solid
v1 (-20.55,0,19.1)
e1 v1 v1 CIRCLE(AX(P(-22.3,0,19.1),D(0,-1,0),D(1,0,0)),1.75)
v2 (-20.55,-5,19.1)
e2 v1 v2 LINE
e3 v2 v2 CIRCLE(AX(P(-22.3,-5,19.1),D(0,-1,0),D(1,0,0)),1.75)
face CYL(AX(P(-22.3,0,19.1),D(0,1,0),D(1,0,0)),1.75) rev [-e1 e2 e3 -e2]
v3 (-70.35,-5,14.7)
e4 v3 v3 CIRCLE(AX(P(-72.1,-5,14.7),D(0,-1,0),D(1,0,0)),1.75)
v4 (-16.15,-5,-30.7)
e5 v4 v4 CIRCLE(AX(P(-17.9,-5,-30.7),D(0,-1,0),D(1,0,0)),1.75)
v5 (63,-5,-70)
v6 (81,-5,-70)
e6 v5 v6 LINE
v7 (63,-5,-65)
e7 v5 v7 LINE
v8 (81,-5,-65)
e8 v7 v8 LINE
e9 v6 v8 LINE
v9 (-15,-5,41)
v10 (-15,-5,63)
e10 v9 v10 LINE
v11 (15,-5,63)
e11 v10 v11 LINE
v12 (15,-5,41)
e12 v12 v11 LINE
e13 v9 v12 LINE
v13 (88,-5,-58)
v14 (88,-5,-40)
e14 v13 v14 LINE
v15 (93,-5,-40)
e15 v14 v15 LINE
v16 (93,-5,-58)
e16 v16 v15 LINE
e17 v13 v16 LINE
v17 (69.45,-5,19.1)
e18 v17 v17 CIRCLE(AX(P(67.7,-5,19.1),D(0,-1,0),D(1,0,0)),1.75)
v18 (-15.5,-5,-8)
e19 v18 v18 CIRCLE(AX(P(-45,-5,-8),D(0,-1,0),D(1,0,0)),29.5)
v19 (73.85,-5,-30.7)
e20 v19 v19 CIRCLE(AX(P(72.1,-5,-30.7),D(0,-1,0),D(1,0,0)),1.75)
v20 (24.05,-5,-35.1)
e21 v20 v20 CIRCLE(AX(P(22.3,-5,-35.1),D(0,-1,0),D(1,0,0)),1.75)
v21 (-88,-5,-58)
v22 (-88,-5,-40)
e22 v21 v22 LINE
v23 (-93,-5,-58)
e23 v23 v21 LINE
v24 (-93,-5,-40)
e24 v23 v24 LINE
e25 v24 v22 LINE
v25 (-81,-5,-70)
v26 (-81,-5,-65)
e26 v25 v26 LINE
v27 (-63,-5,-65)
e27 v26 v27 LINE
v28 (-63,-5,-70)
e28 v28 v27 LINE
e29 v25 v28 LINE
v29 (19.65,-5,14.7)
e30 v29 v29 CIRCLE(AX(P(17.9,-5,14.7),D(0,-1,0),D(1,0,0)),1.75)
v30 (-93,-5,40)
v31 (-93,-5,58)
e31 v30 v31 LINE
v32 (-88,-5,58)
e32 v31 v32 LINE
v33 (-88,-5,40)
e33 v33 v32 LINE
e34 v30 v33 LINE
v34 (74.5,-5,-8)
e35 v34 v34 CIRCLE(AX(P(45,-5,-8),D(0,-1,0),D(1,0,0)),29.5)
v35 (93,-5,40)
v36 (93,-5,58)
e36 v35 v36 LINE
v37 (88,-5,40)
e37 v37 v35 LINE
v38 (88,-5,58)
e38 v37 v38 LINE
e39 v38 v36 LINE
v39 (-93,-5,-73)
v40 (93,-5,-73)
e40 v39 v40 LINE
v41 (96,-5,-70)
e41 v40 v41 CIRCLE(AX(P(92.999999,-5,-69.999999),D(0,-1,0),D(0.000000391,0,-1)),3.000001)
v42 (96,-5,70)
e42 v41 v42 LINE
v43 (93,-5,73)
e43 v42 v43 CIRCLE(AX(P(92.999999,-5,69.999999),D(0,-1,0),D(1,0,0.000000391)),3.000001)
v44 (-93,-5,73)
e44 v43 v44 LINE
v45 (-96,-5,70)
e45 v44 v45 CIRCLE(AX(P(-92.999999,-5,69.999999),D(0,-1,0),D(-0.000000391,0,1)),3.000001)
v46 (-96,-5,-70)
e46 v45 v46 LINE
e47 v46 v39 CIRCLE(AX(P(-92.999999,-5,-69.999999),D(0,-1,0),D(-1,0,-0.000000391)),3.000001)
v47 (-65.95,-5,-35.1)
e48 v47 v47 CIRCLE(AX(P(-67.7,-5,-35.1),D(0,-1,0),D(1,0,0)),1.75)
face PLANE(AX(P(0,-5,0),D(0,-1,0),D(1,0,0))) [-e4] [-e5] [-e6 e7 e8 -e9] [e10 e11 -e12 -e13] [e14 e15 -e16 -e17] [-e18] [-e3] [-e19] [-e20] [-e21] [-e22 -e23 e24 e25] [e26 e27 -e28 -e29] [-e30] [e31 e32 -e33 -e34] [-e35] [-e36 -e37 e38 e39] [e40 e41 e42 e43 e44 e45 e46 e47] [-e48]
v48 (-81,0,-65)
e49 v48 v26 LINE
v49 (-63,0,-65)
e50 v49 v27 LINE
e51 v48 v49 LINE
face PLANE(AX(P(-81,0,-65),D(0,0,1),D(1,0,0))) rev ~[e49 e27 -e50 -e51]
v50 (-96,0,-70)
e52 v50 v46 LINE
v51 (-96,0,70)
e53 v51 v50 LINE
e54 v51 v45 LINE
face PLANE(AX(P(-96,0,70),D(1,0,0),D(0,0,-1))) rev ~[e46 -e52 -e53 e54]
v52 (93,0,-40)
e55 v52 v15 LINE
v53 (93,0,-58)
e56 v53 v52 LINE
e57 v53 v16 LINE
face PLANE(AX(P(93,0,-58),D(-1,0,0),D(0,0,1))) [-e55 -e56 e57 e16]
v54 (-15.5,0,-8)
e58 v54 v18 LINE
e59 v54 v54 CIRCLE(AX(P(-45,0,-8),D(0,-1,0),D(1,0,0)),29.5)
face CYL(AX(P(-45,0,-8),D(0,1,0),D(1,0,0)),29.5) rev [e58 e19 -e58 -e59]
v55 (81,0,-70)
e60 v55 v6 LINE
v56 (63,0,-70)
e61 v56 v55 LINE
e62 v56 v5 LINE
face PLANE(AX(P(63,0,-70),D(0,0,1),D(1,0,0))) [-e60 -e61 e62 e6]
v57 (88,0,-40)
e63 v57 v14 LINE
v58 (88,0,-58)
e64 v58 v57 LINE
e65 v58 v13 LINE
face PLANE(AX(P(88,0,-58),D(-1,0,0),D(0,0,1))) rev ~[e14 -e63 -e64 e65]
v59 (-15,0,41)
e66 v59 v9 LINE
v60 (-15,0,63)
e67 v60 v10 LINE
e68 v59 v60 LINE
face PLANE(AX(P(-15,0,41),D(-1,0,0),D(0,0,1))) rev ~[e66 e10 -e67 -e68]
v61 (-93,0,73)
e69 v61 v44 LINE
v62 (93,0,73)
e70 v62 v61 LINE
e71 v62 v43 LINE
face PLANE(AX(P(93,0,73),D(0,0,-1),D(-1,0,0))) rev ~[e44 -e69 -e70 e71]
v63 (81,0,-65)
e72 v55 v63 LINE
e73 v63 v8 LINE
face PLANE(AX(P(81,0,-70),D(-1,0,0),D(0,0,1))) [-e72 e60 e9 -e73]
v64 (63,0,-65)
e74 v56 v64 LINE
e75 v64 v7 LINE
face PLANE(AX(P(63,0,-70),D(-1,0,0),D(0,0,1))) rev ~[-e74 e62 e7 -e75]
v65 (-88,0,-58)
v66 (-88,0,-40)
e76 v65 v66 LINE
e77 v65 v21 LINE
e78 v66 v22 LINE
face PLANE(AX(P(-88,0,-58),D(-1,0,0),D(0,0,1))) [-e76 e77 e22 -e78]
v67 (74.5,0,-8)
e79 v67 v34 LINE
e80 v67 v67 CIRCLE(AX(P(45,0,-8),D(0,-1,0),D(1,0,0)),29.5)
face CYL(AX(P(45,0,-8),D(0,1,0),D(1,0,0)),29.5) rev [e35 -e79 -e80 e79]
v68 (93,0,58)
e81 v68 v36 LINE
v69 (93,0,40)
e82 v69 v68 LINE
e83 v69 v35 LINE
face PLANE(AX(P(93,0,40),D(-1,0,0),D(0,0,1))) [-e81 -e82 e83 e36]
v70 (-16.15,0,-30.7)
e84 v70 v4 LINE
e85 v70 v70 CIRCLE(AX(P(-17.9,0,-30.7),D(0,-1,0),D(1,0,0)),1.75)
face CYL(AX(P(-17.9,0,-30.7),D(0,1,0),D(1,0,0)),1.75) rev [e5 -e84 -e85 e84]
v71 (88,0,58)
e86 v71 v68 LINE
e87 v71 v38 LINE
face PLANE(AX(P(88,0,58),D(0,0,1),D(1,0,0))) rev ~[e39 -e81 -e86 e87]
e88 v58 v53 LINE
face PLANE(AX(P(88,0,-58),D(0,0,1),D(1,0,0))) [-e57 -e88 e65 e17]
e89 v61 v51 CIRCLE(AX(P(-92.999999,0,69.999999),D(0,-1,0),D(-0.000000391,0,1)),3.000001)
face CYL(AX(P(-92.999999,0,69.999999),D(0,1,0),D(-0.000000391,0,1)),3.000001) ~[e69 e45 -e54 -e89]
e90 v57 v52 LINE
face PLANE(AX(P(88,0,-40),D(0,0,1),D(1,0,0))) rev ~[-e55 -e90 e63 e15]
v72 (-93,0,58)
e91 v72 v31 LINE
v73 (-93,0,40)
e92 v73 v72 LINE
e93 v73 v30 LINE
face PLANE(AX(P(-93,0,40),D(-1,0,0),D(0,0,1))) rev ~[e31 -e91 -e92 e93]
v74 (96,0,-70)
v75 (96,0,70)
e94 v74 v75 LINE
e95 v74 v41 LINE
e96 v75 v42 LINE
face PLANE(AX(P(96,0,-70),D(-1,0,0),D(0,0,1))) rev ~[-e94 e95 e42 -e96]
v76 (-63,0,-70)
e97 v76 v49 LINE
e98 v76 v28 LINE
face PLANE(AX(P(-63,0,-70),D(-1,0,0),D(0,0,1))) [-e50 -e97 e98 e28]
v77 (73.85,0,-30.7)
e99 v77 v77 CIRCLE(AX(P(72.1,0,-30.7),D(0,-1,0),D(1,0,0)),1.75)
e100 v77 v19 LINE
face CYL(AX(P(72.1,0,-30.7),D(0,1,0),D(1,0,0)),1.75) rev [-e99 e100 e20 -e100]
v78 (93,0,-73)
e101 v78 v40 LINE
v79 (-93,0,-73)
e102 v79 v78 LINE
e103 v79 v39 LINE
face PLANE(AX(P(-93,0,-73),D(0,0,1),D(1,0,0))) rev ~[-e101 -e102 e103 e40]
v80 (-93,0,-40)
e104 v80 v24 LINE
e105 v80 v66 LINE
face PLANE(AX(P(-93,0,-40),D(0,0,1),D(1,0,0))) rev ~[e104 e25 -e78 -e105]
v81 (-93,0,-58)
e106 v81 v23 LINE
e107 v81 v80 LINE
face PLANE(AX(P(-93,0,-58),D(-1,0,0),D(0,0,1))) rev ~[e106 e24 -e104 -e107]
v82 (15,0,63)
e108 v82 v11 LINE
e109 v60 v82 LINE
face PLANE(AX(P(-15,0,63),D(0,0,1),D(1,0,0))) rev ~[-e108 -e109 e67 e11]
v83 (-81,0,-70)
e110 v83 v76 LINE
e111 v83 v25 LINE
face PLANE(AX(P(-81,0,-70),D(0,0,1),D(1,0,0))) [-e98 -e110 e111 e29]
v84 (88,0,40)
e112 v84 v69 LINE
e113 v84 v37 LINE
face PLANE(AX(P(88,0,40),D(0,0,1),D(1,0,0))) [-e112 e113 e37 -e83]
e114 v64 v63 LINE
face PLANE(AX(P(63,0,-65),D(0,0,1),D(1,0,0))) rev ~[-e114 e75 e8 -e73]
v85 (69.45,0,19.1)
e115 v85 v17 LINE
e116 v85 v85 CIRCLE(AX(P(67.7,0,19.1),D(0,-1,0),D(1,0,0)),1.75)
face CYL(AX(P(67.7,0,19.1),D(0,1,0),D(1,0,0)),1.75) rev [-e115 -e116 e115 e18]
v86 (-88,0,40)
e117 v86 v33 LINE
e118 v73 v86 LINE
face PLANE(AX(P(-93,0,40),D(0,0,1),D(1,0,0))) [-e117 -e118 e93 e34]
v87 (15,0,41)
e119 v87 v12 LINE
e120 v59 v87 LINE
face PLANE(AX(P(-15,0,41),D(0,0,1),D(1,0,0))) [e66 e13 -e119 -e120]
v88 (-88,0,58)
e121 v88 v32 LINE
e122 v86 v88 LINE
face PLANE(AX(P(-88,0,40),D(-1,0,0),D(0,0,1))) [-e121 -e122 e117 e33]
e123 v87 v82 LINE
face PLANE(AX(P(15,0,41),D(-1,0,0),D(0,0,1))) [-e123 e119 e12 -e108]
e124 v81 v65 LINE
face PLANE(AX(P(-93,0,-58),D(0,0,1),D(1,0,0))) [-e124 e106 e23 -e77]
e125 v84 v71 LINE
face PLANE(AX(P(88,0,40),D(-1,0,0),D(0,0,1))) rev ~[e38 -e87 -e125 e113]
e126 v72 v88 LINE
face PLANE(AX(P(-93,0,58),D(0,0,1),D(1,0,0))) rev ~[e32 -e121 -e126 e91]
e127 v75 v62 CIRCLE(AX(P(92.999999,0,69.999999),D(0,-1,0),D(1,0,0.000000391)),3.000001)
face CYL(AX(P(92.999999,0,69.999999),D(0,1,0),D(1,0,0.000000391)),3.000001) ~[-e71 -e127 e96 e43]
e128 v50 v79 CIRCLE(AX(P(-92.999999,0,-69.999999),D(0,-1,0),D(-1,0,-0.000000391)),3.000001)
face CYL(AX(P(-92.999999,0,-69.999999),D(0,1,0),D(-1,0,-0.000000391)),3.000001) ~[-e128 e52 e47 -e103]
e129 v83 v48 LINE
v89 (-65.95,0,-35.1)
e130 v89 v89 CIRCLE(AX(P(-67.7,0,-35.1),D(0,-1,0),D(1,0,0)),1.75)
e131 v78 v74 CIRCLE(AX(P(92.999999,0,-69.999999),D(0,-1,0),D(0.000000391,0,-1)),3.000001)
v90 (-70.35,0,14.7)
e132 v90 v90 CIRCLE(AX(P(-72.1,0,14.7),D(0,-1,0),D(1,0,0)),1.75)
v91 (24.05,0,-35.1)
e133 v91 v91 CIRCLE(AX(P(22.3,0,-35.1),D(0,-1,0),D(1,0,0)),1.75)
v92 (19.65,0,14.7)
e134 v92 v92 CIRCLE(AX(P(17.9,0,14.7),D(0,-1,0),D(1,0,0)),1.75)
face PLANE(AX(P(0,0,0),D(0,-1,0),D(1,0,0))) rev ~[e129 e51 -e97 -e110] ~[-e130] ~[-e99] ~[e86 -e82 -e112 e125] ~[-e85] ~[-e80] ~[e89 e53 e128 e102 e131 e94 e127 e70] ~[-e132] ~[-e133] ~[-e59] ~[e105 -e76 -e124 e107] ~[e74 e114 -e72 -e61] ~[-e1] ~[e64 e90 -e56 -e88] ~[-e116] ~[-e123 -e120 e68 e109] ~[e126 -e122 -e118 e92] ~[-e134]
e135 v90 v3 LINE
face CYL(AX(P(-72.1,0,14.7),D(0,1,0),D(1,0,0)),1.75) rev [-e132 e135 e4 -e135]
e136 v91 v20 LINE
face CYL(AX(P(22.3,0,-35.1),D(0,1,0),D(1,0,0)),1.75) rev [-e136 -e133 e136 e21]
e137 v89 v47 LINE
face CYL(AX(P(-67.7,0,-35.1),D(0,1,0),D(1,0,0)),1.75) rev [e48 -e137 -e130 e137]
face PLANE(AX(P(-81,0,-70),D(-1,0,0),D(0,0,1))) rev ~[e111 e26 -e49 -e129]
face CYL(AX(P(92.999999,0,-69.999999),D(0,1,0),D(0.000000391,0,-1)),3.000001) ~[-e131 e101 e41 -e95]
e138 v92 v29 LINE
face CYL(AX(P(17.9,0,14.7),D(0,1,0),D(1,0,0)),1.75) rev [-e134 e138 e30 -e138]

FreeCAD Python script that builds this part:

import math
import FreeCAD as App
import Part
import Sketcher
from FreeCAD import Vector


def add_polygon(sketch, points):
    """Adds a closed chain of lines whose ends are joined by coincident constraints."""
    first, n = sketch.GeometryCount, len(points)
    for a, b in zip(points, points[1:] + points[:1]):
        sketch.addGeometry(Part.LineSegment(App.Vector(*a, 0), App.Vector(*b, 0)), False)
    for i in range(n):
        sketch.addConstraint(Sketcher.Constraint("Coincident", first + i, 2, first + (i + 1) % n, 1))

doc = App.newDocument("Part")
body = doc.addObject("PartDesign::Body", "Body")

# Sketch on XZ plane
sketch1 = body.newObject("Sketcher::SketchObject", "Sketch")
sketch1.AttachmentSupport = (doc.getObject("XZ_Plane"), [""])
sketch1.MapMode = "FlatFace"
sketch1.addGeometry(Part.LineSegment(Vector(93, 73, 0), Vector(-93, 73, 0)), False)  # 0
sketch1.addGeometry(Part.ArcOfCircle(Part.Circle(Vector(-93, 70, 0), Vector(0, 0, 1), 3), math.radians(90), math.radians(180)), False)  # 1
sketch1.addGeometry(Part.LineSegment(Vector(-96, 70, 0), Vector(-96, -70, 0)), False)  # 2
sketch1.addGeometry(Part.ArcOfCircle(Part.Circle(Vector(-93, -70, 0), Vector(0, 0, 1), 3), math.radians(-180), math.radians(-90)), False)  # 3
sketch1.addGeometry(Part.LineSegment(Vector(-93, -73, 0), Vector(93, -73, 0)), False)  # 4
sketch1.addGeometry(Part.ArcOfCircle(Part.Circle(Vector(93, -70, 0), Vector(0, 0, 1), 3), math.radians(-90), math.radians(0)), False)  # 5
sketch1.addGeometry(Part.LineSegment(Vector(96, -70, 0), Vector(96, 70, 0)), False)  # 6
sketch1.addGeometry(Part.ArcOfCircle(Part.Circle(Vector(93, 70, 0), Vector(0, 0, 1), 3), math.radians(0), math.radians(90)), False)  # 7
add_polygon(sketch1, [(-63, -70), (-81, -70), (-81, -65), (-63, -65)])  # lines 8-11
add_polygon(sketch1, [(-88, -58), (-93, -58), (-93, -40), (-88, -40)])  # lines 12-15
sketch1.addGeometry(Part.Circle(Vector(-67.7, -35.1, 0), Vector(0, 0, 1), 1.8), False)  # 16
sketch1.addGeometry(Part.Circle(Vector(-17.9, -30.7, 0), Vector(0, 0, 1), 1.8), False)  # 17
sketch1.addGeometry(Part.Circle(Vector(-45, -8, 0), Vector(0, 0, 1), 29.5), False)  # 18
sketch1.addGeometry(Part.Circle(Vector(22.3, -35.1, 0), Vector(0, 0, 1), 1.8), False)  # 19
add_polygon(sketch1, [(81, -70), (63, -70), (63, -65), (81, -65)])  # lines 20-23
add_polygon(sketch1, [(93, -58), (88, -58), (88, -40), (93, -40)])  # lines 24-27
sketch1.addGeometry(Part.Circle(Vector(45, -8, 0), Vector(0, 0, 1), 29.5), False)  # 28
sketch1.addGeometry(Part.Circle(Vector(72.1, -30.7, 0), Vector(0, 0, 1), 1.8), False)  # 29
sketch1.addGeometry(Part.Circle(Vector(-72.1, 14.7, 0), Vector(0, 0, 1), 1.8), False)  # 30
sketch1.addGeometry(Part.Circle(Vector(-22.3, 19.1, 0), Vector(0, 0, 1), 1.8), False)  # 31
add_polygon(sketch1, [(-88, 40), (-93, 40), (-93, 58), (-88, 58)])  # lines 32-35
sketch1.addGeometry(Part.Circle(Vector(17.9, 14.7, 0), Vector(0, 0, 1), 1.8), False)  # 36
sketch1.addGeometry(Part.Circle(Vector(67.7, 19.1, 0), Vector(0, 0, 1), 1.8), False)  # 37
add_polygon(sketch1, [(15, 41), (-15, 41), (-15, 63), (15, 63)])  # lines 38-41
add_polygon(sketch1, [(93, 40), (88, 40), (88, 58), (93, 58)])  # lines 42-45
sketch1.addConstraint([
    Sketcher.Constraint("Tangent", 0, 2, 1, 1),
    Sketcher.Constraint("Tangent", 1, 2, 2, 1),
    Sketcher.Constraint("Tangent", 2, 2, 3, 1),
    Sketcher.Constraint("Tangent", 3, 2, 4, 1),
    Sketcher.Constraint("Tangent", 4, 2, 5, 1),
    Sketcher.Constraint("Tangent", 5, 2, 6, 1),
    Sketcher.Constraint("Tangent", 6, 2, 7, 1),
    Sketcher.Constraint("Tangent", 7, 2, 0, 1),
    Sketcher.Constraint("Horizontal", 0),
    Sketcher.Constraint("Vertical", 2),
    Sketcher.Constraint("Horizontal", 4),
    Sketcher.Constraint("Vertical", 6),
    Sketcher.Constraint("Horizontal", 8),
    Sketcher.Constraint("Vertical", 9),
    Sketcher.Constraint("Horizontal", 10),
    Sketcher.Constraint("Vertical", 11),
    Sketcher.Constraint("Horizontal", 12),
    Sketcher.Constraint("Vertical", 13),
    Sketcher.Constraint("Horizontal", 14),
    Sketcher.Constraint("Vertical", 15),
    Sketcher.Constraint("Horizontal", 20),
    Sketcher.Constraint("Vertical", 21),
    Sketcher.Constraint("Horizontal", 22),
    Sketcher.Constraint("Vertical", 23),
    Sketcher.Constraint("Horizontal", 24),
    Sketcher.Constraint("Vertical", 25),
    Sketcher.Constraint("Horizontal", 26),
    Sketcher.Constraint("Vertical", 27),
    Sketcher.Constraint("Horizontal", 32),
    Sketcher.Constraint("Vertical", 33),
    Sketcher.Constraint("Horizontal", 34),
    Sketcher.Constraint("Vertical", 35),
    Sketcher.Constraint("Horizontal", 38),
    Sketcher.Constraint("Vertical", 39),
    Sketcher.Constraint("Horizontal", 40),
    Sketcher.Constraint("Vertical", 41),
    Sketcher.Constraint("Horizontal", 42),
    Sketcher.Constraint("Vertical", 43),
    Sketcher.Constraint("Horizontal", 44),
    Sketcher.Constraint("Vertical", 45),
    Sketcher.Constraint("Equal", 1, 3),
    Sketcher.Constraint("Equal", 3, 5),
    Sketcher.Constraint("Equal", 5, 7),
    Sketcher.Constraint("Equal", 16, 17),
    Sketcher.Constraint("Equal", 17, 19),
    Sketcher.Constraint("Equal", 18, 28),
    Sketcher.Constraint("Equal", 19, 29),
    Sketcher.Constraint("Equal", 29, 30),
    Sketcher.Constraint("Equal", 30, 31),
    Sketcher.Constraint("Equal", 31, 36),
    Sketcher.Constraint("Equal", 36, 37),
    Sketcher.Constraint("Symmetric", 1, 3, 5, 3, -1, 1),
    Sketcher.Constraint("Symmetric", 26, 2, 32, 2, -1, 1),
    Sketcher.Constraint("Symmetric", 24, 2, 34, 2, -1, 1),
    Sketcher.Constraint("Symmetric", 14, 2, 42, 2, -1, 1),
    Sketcher.Constraint("Symmetric", 12, 2, 44, 2, -1, 1),
    Sketcher.Constraint("Symmetric", 18, 3, 28, 3, -2),
    Sketcher.Constraint("Symmetric", 11, 2, 20, 2, -2),
    Sketcher.Constraint("Symmetric", 9, 2, 22, 2, -2),
    Sketcher.Constraint("Symmetric", 15, 2, 24, 2, -2),
    Sketcher.Constraint("Symmetric", 13, 2, 26, 2, -2),
    Sketcher.Constraint("Horizontal", 16, 3, 19, 3),
    Sketcher.Constraint("Horizontal", 17, 3, 29, 3),
    Sketcher.Constraint("Horizontal", 30, 3, 36, 3),
    Sketcher.Constraint("Horizontal", 31, 3, 37, 3),
    Sketcher.Constraint("Horizontal", 5, 2, 8, 2),
    Sketcher.Constraint("Vertical", 3, 2, 12, 2),
    Sketcher.Constraint("Equal", 44, 9),
    Sketcher.Constraint("Equal", 22, 13),
    Sketcher.Constraint("Diameter", 18, 59.0),
    Sketcher.Constraint("Radius", 1, 3.000001),
    Sketcher.Constraint("Diameter", 16, 3.5),
    Sketcher.Constraint("DistanceX", 0, 2, 0, 1, 186.0),
    Sketcher.Constraint("DistanceX", 8, 2, 8, 1, 18.0),
    Sketcher.Constraint("DistanceX", 12, 2, 12, 1, 5.0),
    Sketcher.Constraint("DistanceX", 38, 2, 38, 1, 30.0),
    Sketcher.Constraint("DistanceY", 2, 2, 2, 1, 140.0),
    Sketcher.Constraint("DistanceY", 39, 1, 39, 2, 22.0),
    Sketcher.Constraint("DistanceX", 18, 3, -1, 1, 45.0),
    Sketcher.Constraint("DistanceY", 18, 3, -1, 1, 8.0),
    Sketcher.Constraint("DistanceX", 8, 2, -1, 1, 81.0),
    Sketcher.Constraint("DistanceY", 12, 2, -1, 1, 58.0),
    Sketcher.Constraint("DistanceX", 38, 2, -1, 1, 15.0),
    Sketcher.Constraint("DistanceY", -1, 1, 38, 2, 41.0),
    Sketcher.Constraint("DistanceX", 16, 3, 19, 3, 90.0),
    Sketcher.Constraint("DistanceX", 17, 3, 29, 3, 90.0),
    Sketcher.Constraint("DistanceX", 16, 3, -1, 1, 67.7),
    Sketcher.Constraint("DistanceY", 16, 3, -1, 1, 35.1),
    Sketcher.Constraint("DistanceX", 17, 3, -1, 1, 17.9),
    Sketcher.Constraint("DistanceY", 17, 3, -1, 1, 30.7),
    Sketcher.Constraint("DistanceX", 30, 3, -1, 1, 72.1),
    Sketcher.Constraint("DistanceY", -1, 1, 30, 3, 14.7),
    Sketcher.Constraint("DistanceX", 31, 3, -1, 1, 22.3),
    Sketcher.Constraint("DistanceY", -1, 1, 31, 3, 19.1),
    Sketcher.Constraint("DistanceX", -1, 1, 36, 3, 17.9),
    Sketcher.Constraint("DistanceX", -1, 1, 37, 3, 67.7),
])
pad1 = body.newObject("PartDesign::Pad", "Pad")
pad1.Profile = sketch1
pad1.Length = 5

doc.recompute()
